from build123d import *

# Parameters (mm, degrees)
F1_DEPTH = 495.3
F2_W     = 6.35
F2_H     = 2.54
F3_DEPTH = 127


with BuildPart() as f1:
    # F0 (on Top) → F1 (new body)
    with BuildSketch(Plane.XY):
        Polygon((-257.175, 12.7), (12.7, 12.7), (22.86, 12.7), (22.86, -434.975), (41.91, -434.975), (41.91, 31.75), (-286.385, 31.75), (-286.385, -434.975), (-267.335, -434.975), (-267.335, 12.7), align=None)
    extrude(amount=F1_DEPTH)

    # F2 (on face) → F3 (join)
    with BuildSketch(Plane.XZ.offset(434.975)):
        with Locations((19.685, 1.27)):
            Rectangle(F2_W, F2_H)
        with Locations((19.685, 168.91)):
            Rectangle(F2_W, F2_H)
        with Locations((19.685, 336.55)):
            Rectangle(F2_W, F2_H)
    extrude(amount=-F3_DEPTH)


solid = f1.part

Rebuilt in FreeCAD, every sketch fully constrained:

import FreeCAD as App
import Part
import Sketcher
Q = App.Units.Quantity

doc = App.newDocument("Part")
body = doc.addObject("PartDesign::Body", "Body")

sketch1 = body.newObject("Sketcher::SketchObject", "Sketch")
sketch1.AttachmentSupport = (doc.getObject("XY_Plane"), [""])
sketch1.MapMode = "FlatFace"
sketch1.addGeometry([
    Part.LineSegment(App.Vector(23, 13, 0), App.Vector(23, -435, 0)),
    Part.LineSegment(App.Vector(23, -435, 0), App.Vector(42, -435, 0)),
    Part.LineSegment(App.Vector(42, -435, 0), App.Vector(42, 32, 0)),
    Part.LineSegment(App.Vector(42, 32, 0), App.Vector(-286, 32, 0)),
    Part.LineSegment(App.Vector(-286, 32, 0), App.Vector(-286, -435, 0)),
    Part.LineSegment(App.Vector(-286, -435, 0), App.Vector(-267, -435, 0)),
    Part.LineSegment(App.Vector(-267, -435, 0), App.Vector(-267, 13, 0)),
    Part.LineSegment(App.Vector(-267, 13, 0), App.Vector(23, 13, 0)),
], False)
sketch1.addConstraint([
    Sketcher.Constraint("Coincident", 0, 2, 1, 1),
    Sketcher.Constraint("Coincident", 1, 2, 2, 1),
    Sketcher.Constraint("Coincident", 2, 2, 3, 1),
    Sketcher.Constraint("Coincident", 3, 2, 4, 1),
    Sketcher.Constraint("Coincident", 4, 2, 5, 1),
    Sketcher.Constraint("Coincident", 5, 2, 6, 1),
    Sketcher.Constraint("Coincident", 6, 2, 7, 1),
    Sketcher.Constraint("Coincident", 7, 2, 0, 1),
    Sketcher.Constraint("Vertical", 0),
    Sketcher.Constraint("Horizontal", 1),
    Sketcher.Constraint("Vertical", 2),
    Sketcher.Constraint("Horizontal", 3),
    Sketcher.Constraint("Vertical", 4),
    Sketcher.Constraint("Horizontal", 5),
    Sketcher.Constraint("Vertical", 6),
    Sketcher.Constraint("Horizontal", 7),
    Sketcher.Constraint("Horizontal", 1, 2, 4, 2),
    Sketcher.Constraint("Equal", 1, 5),
    Sketcher.Constraint("DistanceX", 1, 1, 1, 2, Q("0.75 in")),
    Sketcher.Constraint("DistanceX", -1, 1, 0, 2, Q("0.9 in")),
    Sketcher.Constraint("DistanceY", -1, 1, 6, 2, Q("0.5 in")),
    Sketcher.Constraint("DistanceX", 3, 2, 3, 1, Q("12.925 in")),
    Sketcher.Constraint("DistanceY", 0, 2, 0, 1, Q("17.625 in")),
    Sketcher.Constraint("DistanceY", 2, 1, 2, 2, Q("18.375 in")),
])
pad1 = body.newObject("PartDesign::Pad", "Pad")
pad1.Profile = sketch1
pad1.Length = Q("19.5 in")

sketch2 = body.newObject("Sketcher::SketchObject", "Sketch001")
sketch2.AttachmentSupport = (doc.getObject("XZ_Plane"), [""])
sketch2.MapMode = "FlatFace"
sketch2.AttachmentOffset = App.Placement(App.Vector(0, 0, 17.125 * 25.4), App.Rotation())
sketch2.addGeometry([
    Part.LineSegment(App.Vector(16.5, 2.5, 0), App.Vector(16.5, 0, 0)),
    Part.LineSegment(App.Vector(16.5, 0, 0), App.Vector(22.9, 0, 0)),
    Part.LineSegment(App.Vector(22.9, 0, 0), App.Vector(22.9, 2.5, 0)),
    Part.LineSegment(App.Vector(22.9, 2.5, 0), App.Vector(16.5, 2.5, 0)),
    Part.LineSegment(App.Vector(16.5, 170.2, 0), App.Vector(16.5, 167.6, 0)),
    Part.LineSegment(App.Vector(16.5, 167.6, 0), App.Vector(22.9, 167.6, 0)),
    Part.LineSegment(App.Vector(22.9, 167.6, 0), App.Vector(22.9, 170.2, 0)),
    Part.LineSegment(App.Vector(22.9, 170.2, 0), App.Vector(16.5, 170.2, 0)),
    Part.LineSegment(App.Vector(16.5, 337.8, 0), App.Vector(16.5, 335.3, 0)),
    Part.LineSegment(App.Vector(16.5, 335.3, 0), App.Vector(22.9, 335.3, 0)),
    Part.LineSegment(App.Vector(22.9, 335.3, 0), App.Vector(22.9, 337.8, 0)),
    Part.LineSegment(App.Vector(22.9, 337.8, 0), App.Vector(16.5, 337.8, 0)),
], False)
sketch2.addConstraint([
    Sketcher.Constraint("Coincident", 0, 2, 1, 1),
    Sketcher.Constraint("Coincident", 1, 2, 2, 1),
    Sketcher.Constraint("Coincident", 2, 2, 3, 1),
    Sketcher.Constraint("Coincident", 3, 2, 0, 1),
    Sketcher.Constraint("Coincident", 4, 2, 5, 1),
    Sketcher.Constraint("Coincident", 5, 2, 6, 1),
    Sketcher.Constraint("Coincident", 6, 2, 7, 1),
    Sketcher.Constraint("Coincident", 7, 2, 4, 1),
    Sketcher.Constraint("Coincident", 8, 2, 9, 1),
    Sketcher.Constraint("Coincident", 9, 2, 10, 1),
    Sketcher.Constraint("Coincident", 10, 2, 11, 1),
    Sketcher.Constraint("Coincident", 11, 2, 8, 1),
    Sketcher.Constraint("Vertical", 0),
    Sketcher.Constraint("Horizontal", 1),
    Sketcher.Constraint("Vertical", 2),
    Sketcher.Constraint("Horizontal", 3),
    Sketcher.Constraint("Vertical", 4),
    Sketcher.Constraint("Horizontal", 5),
    Sketcher.Constraint("Vertical", 6),
    Sketcher.Constraint("Horizontal", 7),
    Sketcher.Constraint("Vertical", 8),
    Sketcher.Constraint("Horizontal", 9),
    Sketcher.Constraint("Vertical", 10),
    Sketcher.Constraint("Horizontal", 11),
    Sketcher.Constraint("PointOnObject", 0, 2, -1),
    Sketcher.Constraint("Vertical", 3, 2, 4, 2),
    Sketcher.Constraint("Vertical", 2, 2, 5, 2),
    Sketcher.Constraint("Vertical", 7, 2, 8, 2),
    Sketcher.Constraint("Vertical", 6, 2, 9, 2),
    Sketcher.Constraint("Equal", 2, 4),
    Sketcher.Constraint("Equal", 6, 8),
    Sketcher.Constraint("DistanceY", 0, 2, 0, 1, Q("0.1 in")),
    Sketcher.Constraint("DistanceX", 1, 1, 1, 2, Q("0.25 in")),
    Sketcher.Constraint("DistanceX", -1, 1, 1, 2, Q("0.9 in")),
    Sketcher.Constraint("DistanceY", -1, 1, 4, 2, Q("6.6 in")),
    Sketcher.Constraint("DistanceY", -1, 1, 8, 2, Q("13.2 in")),
])
pad2 = body.newObject("PartDesign::Pad", "Pad001")
pad2.Profile = sketch2
pad2.Length = Q("5 in")
pad2.Reversed = True

doc.recompute()
